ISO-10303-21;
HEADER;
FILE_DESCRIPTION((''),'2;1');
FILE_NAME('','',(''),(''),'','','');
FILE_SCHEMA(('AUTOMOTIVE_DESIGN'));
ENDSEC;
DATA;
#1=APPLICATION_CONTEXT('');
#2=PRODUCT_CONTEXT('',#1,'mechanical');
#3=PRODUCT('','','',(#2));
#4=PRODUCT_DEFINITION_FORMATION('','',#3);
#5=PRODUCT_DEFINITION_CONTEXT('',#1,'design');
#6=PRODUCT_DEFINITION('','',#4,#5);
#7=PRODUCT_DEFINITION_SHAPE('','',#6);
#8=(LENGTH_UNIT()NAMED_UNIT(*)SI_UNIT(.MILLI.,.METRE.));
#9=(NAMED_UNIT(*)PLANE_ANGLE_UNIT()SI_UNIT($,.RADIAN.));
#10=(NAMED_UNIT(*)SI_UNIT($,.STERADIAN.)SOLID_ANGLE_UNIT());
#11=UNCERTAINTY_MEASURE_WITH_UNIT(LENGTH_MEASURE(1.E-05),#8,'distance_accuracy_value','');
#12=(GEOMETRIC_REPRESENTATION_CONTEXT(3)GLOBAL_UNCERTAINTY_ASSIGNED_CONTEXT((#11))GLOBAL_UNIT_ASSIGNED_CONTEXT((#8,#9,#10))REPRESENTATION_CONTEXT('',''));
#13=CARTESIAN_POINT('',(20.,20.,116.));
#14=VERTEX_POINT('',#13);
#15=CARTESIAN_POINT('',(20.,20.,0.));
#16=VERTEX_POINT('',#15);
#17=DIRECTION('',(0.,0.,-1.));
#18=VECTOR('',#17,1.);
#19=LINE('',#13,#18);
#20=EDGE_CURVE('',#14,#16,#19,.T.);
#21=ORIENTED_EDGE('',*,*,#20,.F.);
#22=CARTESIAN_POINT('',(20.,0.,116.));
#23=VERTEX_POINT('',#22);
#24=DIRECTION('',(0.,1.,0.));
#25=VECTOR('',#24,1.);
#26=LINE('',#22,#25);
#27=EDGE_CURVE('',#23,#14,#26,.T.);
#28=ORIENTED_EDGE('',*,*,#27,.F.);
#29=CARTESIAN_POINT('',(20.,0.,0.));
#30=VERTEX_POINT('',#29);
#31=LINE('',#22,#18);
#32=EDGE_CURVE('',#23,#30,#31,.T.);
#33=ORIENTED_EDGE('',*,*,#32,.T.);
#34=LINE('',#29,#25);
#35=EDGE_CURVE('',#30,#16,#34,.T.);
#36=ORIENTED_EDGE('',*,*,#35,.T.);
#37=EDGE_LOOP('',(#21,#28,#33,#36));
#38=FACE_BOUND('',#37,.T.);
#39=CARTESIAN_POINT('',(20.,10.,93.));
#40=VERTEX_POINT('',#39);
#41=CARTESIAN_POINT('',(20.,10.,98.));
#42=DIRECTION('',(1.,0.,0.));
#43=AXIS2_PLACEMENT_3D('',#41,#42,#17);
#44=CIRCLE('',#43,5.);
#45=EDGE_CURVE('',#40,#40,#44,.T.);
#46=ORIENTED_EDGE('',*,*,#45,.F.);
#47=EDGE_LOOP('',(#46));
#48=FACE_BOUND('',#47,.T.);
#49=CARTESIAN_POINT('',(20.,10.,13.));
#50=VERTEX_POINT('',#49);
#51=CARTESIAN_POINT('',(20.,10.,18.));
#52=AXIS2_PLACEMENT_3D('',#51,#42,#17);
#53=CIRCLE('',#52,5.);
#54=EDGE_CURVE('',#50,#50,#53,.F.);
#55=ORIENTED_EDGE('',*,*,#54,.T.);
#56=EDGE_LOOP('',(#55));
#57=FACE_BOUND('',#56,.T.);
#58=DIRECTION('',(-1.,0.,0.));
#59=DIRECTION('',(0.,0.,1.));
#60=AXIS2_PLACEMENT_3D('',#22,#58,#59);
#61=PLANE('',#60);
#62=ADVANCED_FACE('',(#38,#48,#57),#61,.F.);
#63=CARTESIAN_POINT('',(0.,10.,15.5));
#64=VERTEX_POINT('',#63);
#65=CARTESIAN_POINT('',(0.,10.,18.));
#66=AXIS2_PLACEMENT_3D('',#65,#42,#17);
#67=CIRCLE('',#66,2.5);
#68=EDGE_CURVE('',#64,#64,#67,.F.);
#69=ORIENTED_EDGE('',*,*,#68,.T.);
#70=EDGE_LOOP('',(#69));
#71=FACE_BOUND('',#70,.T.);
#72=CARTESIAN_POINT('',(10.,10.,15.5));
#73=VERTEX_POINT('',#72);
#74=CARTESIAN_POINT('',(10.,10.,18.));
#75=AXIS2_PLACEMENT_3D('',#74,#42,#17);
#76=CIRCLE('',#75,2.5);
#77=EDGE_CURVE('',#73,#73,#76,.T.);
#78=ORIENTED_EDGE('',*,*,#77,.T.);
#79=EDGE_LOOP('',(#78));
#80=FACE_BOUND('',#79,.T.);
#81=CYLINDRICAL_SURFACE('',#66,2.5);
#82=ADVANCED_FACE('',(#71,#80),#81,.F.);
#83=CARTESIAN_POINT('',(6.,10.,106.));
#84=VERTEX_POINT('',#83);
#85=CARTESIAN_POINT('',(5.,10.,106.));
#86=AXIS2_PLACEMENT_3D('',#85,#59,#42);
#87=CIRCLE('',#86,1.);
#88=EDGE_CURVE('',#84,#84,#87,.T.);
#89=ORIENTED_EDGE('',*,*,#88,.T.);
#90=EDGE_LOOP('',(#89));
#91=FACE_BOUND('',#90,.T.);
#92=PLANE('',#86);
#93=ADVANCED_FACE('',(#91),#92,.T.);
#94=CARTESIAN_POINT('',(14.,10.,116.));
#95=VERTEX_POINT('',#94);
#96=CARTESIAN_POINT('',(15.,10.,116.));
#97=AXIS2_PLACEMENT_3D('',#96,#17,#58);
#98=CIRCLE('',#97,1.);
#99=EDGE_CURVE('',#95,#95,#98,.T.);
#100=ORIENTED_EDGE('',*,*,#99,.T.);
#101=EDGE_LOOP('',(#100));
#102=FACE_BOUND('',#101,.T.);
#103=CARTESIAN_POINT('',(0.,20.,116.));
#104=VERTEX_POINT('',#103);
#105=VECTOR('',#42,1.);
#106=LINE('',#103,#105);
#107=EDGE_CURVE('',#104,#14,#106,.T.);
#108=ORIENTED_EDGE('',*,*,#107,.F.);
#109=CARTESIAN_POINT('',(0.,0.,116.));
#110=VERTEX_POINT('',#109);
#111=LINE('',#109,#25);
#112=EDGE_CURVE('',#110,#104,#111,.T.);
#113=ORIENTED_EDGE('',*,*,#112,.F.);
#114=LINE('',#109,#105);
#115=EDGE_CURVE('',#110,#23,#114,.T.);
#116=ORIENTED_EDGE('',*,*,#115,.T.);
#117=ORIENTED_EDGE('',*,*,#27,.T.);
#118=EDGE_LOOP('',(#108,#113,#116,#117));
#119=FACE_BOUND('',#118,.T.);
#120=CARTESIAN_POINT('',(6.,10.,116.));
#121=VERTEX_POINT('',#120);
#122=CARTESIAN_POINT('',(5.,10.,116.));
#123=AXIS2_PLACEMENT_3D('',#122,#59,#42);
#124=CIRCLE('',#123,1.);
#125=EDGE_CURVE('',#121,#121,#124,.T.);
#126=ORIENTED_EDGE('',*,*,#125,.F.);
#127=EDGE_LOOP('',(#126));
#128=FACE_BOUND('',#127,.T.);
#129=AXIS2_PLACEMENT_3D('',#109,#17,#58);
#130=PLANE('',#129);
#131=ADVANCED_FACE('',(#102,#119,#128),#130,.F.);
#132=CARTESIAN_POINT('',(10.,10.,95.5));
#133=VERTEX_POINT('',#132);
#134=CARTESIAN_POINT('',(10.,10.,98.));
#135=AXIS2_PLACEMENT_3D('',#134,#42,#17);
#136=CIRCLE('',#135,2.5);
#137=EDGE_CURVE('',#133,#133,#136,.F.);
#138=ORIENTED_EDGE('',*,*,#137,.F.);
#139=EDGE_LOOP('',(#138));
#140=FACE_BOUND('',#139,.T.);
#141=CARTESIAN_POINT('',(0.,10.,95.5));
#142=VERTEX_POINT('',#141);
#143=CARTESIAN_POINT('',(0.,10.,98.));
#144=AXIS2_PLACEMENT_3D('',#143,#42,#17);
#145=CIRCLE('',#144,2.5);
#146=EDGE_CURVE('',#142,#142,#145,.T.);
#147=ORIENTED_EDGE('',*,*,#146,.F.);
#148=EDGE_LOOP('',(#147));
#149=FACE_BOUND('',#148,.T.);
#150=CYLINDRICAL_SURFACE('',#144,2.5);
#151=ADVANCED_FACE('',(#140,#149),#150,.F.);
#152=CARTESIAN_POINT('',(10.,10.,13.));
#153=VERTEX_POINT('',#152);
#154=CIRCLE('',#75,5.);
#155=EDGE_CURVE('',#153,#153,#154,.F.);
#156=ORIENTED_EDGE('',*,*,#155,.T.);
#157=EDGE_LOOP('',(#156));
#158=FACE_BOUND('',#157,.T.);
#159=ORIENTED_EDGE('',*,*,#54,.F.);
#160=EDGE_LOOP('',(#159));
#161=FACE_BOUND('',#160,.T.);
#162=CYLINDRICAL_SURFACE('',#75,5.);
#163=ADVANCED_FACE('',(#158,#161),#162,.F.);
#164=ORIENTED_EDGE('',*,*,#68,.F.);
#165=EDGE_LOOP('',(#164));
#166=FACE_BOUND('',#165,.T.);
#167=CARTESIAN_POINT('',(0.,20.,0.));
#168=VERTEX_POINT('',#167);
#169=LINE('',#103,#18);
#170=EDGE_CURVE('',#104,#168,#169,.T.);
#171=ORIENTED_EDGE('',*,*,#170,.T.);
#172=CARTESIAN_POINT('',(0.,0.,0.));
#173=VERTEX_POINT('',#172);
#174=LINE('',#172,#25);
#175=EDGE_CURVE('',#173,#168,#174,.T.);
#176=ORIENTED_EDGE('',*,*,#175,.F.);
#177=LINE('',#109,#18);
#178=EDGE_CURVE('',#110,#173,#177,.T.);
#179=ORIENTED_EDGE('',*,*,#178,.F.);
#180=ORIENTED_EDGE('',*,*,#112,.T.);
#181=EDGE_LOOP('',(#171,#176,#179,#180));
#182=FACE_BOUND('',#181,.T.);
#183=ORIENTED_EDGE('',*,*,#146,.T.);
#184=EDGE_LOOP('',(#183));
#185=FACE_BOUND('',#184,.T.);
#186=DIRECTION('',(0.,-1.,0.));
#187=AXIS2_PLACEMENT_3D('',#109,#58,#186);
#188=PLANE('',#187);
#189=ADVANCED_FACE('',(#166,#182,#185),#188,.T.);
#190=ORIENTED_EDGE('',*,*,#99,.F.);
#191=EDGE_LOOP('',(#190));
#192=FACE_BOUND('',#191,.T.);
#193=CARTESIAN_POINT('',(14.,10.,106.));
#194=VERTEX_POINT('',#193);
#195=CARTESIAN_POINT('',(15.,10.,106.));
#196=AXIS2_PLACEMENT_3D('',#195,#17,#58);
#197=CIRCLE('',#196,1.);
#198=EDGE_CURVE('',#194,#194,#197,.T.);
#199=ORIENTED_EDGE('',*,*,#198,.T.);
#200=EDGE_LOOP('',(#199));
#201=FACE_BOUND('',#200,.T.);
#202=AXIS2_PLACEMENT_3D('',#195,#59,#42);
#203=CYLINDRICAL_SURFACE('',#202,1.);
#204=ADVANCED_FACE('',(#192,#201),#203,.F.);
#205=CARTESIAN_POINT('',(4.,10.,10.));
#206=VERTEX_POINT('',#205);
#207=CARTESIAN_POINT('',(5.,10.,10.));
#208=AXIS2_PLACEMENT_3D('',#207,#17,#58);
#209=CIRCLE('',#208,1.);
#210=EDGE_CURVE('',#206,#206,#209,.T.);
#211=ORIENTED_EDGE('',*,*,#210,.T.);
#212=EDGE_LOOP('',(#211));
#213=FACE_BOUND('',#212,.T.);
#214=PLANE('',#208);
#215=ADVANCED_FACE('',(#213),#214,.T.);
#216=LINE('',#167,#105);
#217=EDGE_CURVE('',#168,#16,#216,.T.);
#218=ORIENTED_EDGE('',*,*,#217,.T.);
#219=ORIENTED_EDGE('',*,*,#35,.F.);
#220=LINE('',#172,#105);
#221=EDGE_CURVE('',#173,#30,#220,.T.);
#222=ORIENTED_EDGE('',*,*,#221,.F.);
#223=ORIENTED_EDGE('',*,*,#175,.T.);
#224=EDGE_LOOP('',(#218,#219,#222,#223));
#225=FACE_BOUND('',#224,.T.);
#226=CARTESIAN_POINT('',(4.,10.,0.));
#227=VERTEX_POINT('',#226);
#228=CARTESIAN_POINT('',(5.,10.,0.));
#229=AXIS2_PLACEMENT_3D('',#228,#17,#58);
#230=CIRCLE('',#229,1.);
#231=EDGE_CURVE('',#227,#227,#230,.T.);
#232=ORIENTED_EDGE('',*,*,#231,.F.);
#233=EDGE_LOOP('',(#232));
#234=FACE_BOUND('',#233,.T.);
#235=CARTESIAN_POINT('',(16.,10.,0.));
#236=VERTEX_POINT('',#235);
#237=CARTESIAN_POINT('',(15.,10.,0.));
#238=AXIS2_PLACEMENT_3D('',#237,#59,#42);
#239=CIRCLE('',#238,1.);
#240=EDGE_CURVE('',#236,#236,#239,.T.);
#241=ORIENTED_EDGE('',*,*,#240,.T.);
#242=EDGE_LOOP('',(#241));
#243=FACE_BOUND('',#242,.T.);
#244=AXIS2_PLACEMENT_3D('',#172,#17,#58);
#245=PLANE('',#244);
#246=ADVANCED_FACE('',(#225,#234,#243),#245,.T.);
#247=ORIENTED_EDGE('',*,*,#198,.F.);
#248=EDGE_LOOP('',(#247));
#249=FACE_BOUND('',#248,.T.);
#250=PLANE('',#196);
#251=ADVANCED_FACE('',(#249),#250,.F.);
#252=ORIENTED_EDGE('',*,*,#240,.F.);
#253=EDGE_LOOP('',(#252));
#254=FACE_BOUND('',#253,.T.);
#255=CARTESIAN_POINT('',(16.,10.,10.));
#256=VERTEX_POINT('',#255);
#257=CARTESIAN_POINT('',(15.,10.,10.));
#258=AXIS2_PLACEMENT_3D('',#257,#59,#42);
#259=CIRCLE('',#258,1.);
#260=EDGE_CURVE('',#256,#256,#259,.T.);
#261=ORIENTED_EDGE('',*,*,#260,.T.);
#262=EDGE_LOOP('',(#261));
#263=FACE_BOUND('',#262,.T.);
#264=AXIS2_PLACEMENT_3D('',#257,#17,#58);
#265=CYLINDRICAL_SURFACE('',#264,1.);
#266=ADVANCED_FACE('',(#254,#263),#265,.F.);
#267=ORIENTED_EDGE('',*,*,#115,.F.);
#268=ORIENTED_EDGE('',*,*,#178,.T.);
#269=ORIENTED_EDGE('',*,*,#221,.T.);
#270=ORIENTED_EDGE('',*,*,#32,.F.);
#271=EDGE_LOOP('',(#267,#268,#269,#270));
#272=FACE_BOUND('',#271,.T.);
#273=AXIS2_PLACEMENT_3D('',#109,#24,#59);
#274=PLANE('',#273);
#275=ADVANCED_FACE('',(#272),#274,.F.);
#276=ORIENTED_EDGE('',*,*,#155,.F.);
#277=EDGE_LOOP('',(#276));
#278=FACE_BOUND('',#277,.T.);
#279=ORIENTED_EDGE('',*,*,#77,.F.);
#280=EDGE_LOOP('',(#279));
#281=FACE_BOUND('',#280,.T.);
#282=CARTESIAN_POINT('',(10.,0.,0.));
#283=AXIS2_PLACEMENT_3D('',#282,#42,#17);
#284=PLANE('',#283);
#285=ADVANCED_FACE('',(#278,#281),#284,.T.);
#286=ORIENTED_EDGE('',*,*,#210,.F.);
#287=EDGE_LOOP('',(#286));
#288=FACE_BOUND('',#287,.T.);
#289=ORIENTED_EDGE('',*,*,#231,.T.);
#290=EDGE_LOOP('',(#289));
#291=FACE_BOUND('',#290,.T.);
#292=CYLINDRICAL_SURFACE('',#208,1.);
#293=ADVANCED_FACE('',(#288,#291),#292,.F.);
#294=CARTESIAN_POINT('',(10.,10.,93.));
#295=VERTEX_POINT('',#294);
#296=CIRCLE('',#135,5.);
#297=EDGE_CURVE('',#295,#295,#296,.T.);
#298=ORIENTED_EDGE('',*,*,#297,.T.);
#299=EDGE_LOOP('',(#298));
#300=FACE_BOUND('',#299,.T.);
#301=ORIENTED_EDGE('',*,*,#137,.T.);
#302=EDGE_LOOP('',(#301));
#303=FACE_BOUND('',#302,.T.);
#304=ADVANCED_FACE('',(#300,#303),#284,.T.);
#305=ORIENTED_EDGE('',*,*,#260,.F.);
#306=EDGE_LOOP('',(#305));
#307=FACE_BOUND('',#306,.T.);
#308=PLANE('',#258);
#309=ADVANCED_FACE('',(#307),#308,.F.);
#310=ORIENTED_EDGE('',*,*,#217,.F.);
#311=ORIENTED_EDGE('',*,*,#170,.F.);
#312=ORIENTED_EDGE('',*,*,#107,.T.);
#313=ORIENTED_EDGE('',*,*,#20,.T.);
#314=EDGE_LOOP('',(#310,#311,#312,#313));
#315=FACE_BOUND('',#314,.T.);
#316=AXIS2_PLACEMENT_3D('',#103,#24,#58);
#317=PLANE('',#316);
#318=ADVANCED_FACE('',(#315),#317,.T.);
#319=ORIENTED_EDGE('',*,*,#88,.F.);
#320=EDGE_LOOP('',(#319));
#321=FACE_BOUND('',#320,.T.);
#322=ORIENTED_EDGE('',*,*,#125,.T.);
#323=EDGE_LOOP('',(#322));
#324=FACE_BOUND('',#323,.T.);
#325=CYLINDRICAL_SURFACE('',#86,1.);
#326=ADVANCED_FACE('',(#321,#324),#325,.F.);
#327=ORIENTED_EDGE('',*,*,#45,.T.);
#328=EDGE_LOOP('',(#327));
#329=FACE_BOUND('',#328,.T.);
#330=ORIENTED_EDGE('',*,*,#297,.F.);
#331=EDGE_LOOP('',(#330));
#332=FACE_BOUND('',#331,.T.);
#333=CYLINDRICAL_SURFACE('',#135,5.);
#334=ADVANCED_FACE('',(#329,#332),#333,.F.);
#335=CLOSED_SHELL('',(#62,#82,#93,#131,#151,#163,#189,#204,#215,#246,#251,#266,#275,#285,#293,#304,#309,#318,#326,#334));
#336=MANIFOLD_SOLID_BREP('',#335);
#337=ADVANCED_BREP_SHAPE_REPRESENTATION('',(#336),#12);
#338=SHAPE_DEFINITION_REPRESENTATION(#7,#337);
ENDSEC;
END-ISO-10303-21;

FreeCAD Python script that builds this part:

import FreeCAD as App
import Part
import Sketcher

V = App.Vector

doc = App.newDocument("Part")
body = doc.addObject("PartDesign::Body", "Body")

# Sketch on XY plane
sketch1 = doc.addObject("Sketcher::SketchObject", "Sketch")
body.addObject(sketch1)
sketch1.AttachmentSupport = (doc.XY_Plane, [""])
sketch1.MapMode = "FlatFace"
sketch1.addGeometry([
    Part.LineSegment(V(0, 20, 0), V(0, 0, 0)),
    Part.LineSegment(V(0, 0, 0), V(20, 0, 0)),
    Part.LineSegment(V(20, 0, 0), V(20, 20, 0)),
    Part.LineSegment(V(20, 20, 0), V(0, 20, 0)),
], False)
sketch1.addConstraint([
    Sketcher.Constraint("Coincident", 0, 2, 1, 1),
    Sketcher.Constraint("Coincident", 1, 2, 2, 1),
    Sketcher.Constraint("Coincident", 2, 2, 3, 1),
    Sketcher.Constraint("Coincident", 3, 2, 0, 1),
    Sketcher.Constraint("Vertical", 0),
    Sketcher.Constraint("Horizontal", 1),
    Sketcher.Constraint("Vertical", 2),
    Sketcher.Constraint("Horizontal", 3),
    Sketcher.Constraint("Coincident", 0, 2, -1, 1),
    Sketcher.Constraint("Equal", 3, 0),
    Sketcher.Constraint("DistanceX", 1, 1, 1, 2, 20.0),
])
pad1 = doc.addObject("PartDesign::Pad", "Pad")
body.addObject(pad1)
pad1.Profile = sketch1
pad1.Length = 116

# Sketch on XY plane
sketch2 = doc.addObject("Sketcher::SketchObject", "Sketch001")
body.addObject(sketch2)
sketch2.AttachmentSupport = (doc.XY_Plane, [""])
sketch2.MapMode = "FlatFace"
sketch2.addGeometry([
    Part.Circle(V(15, 10, 0), V(0, 0, 1), 1),
    Part.Circle(V(5, 10, 0), V(0, 0, 1), 1),
], False)
sketch2.addConstraint([
    Sketcher.Constraint("Equal", 0, 1),
    Sketcher.Constraint("Horizontal", 0, 3, 1, 3),
    Sketcher.Constraint("Diameter", 0, 2.0),
    Sketcher.Constraint("DistanceX", -1, 1, 0, 3, 15.0),
    Sketcher.Constraint("DistanceY", -1, 1, 0, 3, 10.0),
    Sketcher.Constraint("DistanceX", -1, 1, 1, 3, 5.0),
])
pocket1 = doc.addObject("PartDesign::Pocket", "Pocket")
body.addObject(pocket1)
pocket1.Profile = sketch2
pocket1.Length = 10
pocket1.Reversed = True

# Sketch on XY plane
sketch3 = doc.addObject("Sketcher::SketchObject", "Sketch002")
body.addObject(sketch3)
sketch3.AttachmentSupport = (doc.XY_Plane, [""])
sketch3.MapMode = "FlatFace"
sketch3.AttachmentOffset = App.Placement(V(0, 0, 116), App.Rotation())
sketch3.addGeometry([
    Part.Circle(V(5, 10, 0), V(0, 0, 1), 1),
    Part.Circle(V(15, 10, 0), V(0, 0, 1), 1),
], False)
sketch3.addConstraint([
    Sketcher.Constraint("Equal", 0, 1),
    Sketcher.Constraint("Horizontal", 0, 3, 1, 3),
    Sketcher.Constraint("Diameter", 0, 2.0),
    Sketcher.Constraint("DistanceX", -1, 1, 0, 3, 5.0),
    Sketcher.Constraint("DistanceY", -1, 1, 0, 3, 10.0),
    Sketcher.Constraint("DistanceX", -1, 1, 1, 3, 15.0),
])
pocket2 = doc.addObject("PartDesign::Pocket", "Pocket001")
body.addObject(pocket2)
pocket2.Profile = sketch3
pocket2.Length = 10

# Sketch on YZ plane
sketch4 = doc.addObject("Sketcher::SketchObject", "Sketch003")
body.addObject(sketch4)
sketch4.AttachmentSupport = (doc.YZ_Plane, [""])
sketch4.MapMode = "FlatFace"
sketch4.AttachmentOffset = App.Placement(V(0, 0, 20), App.Rotation())
sketch4.addGeometry([
    Part.Circle(V(10, 98, 0), V(0, 0, 1), 2.5),
    Part.Circle(V(10, 18, 0), V(0, 0, 1), 2.5),
], False)
sketch4.addConstraint([
    Sketcher.Constraint("Equal", 0, 1),
    Sketcher.Constraint("Vertical", 0, 3, 1, 3),
    Sketcher.Constraint("Diameter", 0, 5.0),
    Sketcher.Constraint("DistanceX", -1, 1, 0, 3, 10.0),
    Sketcher.Constraint("DistanceY", -1, 1, 0, 3, 98.0),
    Sketcher.Constraint("DistanceY", -1, 1, 1, 3, 18.0),
])
pocket3 = doc.addObject("PartDesign::Pocket", "Pocket002")
body.addObject(pocket3)
pocket3.Profile = sketch4
pocket3.Type = "ThroughAll"

# Sketch on YZ plane
sketch5 = doc.addObject("Sketcher::SketchObject", "Sketch004")
body.addObject(sketch5)
sketch5.AttachmentSupport = (doc.YZ_Plane, [""])
sketch5.MapMode = "FlatFace"
sketch5.AttachmentOffset = App.Placement(V(0, 0, 20), App.Rotation())
sketch5.addGeometry([
    Part.Circle(V(10, 98, 0), V(0, 0, 1), 5),
    Part.Circle(V(10, 18, 0), V(0, 0, 1), 5),
], False)
sketch5.addConstraint([
    Sketcher.Constraint("Equal", 0, 1),
    Sketcher.Constraint("Vertical", 0, 3, 1, 3),
    Sketcher.Constraint("Diameter", 0, 10.0),
    Sketcher.Constraint("DistanceX", -1, 1, 0, 3, 10.0),
    Sketcher.Constraint("DistanceY", -1, 1, 0, 3, 98.0),
    Sketcher.Constraint("DistanceY", -1, 1, 1, 3, 18.0),
])
pocket4 = doc.addObject("PartDesign::Pocket", "Pocket003")
body.addObject(pocket4)
pocket4.Profile = sketch5
pocket4.Length = 10

doc.recompute()
